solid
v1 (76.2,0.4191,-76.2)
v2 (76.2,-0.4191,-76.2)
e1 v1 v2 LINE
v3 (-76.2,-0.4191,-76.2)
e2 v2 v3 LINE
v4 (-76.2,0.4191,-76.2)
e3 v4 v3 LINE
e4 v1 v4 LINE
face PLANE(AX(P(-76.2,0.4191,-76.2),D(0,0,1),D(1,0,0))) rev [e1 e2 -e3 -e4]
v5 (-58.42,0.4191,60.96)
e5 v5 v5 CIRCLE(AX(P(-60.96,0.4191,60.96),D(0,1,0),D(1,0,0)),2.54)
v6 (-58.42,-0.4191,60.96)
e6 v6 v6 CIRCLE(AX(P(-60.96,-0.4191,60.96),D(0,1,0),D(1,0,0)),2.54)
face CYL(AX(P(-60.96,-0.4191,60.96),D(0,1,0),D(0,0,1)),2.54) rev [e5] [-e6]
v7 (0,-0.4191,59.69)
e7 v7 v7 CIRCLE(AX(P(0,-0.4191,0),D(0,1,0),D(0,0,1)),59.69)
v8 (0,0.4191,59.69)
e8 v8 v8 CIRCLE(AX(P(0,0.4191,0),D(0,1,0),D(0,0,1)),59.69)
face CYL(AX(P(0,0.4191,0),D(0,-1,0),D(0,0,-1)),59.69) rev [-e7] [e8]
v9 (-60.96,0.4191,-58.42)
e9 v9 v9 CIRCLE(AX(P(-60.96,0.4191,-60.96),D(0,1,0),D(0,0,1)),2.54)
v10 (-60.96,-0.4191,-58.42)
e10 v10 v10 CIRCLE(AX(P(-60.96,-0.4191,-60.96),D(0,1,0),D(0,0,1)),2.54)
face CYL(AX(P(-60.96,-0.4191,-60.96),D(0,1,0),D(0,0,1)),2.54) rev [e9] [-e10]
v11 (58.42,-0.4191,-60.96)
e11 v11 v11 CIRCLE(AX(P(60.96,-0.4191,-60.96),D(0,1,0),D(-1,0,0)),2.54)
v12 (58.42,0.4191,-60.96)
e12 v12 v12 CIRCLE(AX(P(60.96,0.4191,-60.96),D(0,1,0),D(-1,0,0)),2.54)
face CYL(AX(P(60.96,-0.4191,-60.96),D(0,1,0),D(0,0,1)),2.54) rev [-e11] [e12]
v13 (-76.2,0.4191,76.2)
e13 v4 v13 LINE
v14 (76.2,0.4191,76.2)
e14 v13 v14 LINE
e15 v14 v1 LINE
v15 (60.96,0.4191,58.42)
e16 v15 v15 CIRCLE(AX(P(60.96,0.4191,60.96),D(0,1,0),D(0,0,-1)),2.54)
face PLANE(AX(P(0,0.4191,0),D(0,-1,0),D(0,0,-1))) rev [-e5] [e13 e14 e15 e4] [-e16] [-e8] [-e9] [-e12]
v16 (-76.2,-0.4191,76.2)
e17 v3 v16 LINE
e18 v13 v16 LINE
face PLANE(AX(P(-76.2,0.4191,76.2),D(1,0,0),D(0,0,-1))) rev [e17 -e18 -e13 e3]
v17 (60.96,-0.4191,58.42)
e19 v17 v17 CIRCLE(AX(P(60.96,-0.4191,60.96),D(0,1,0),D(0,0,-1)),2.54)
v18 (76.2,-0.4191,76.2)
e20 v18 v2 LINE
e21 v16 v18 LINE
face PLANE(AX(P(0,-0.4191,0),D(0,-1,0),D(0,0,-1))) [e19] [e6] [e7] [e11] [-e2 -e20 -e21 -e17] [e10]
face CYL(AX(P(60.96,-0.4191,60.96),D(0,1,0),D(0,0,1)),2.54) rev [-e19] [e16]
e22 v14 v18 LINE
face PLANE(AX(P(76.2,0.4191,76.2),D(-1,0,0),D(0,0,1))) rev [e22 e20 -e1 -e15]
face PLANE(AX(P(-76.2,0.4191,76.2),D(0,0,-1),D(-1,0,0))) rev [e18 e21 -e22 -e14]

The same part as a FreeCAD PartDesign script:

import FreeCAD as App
import Part
import Sketcher

V = App.Vector
Q = App.Units.Quantity

doc = App.newDocument("Part")
params = doc.addObject("Spreadsheet::Sheet", "Params")
for row, (alias, value) in enumerate([
    ("sketch1_diameter", "4.7 in"),
    ("sketch1_width", "6 in"),
    ("pad1_length", "0.033 in"),
    ("sketch2_diameter", "0.2 in"),
], start=1):
    params.set(f"A{row}", alias)
    params.set(f"B{row}", "=" + value)
    params.setAlias(f"B{row}", alias)

body = doc.addObject("PartDesign::Body", "Body")

# Sketch on XZ plane
sketch1 = body.newObject("Sketcher::SketchObject", "Sketch")
sketch1.AttachmentSupport = (doc.getObject("XZ_Plane"), [""])
sketch1.MapMode = "FlatFace"
sketch1.addGeometry(Part.LineSegment(V(-76.2, -76.2, 0), V(-76.2, 76.2, 0)), False)
sketch1.addGeometry(Part.LineSegment(V(-76.2, 76.2, 0), V(76.2, 76.2, 0)), False)
sketch1.addGeometry(Part.LineSegment(V(76.2, 76.2, 0), V(76.2, -76.2, 0)), False)
sketch1.addGeometry(Part.LineSegment(V(76.2, -76.2, 0), V(-76.2, -76.2, 0)), False)
sketch1.addGeometry(Part.Circle(V(0, 0, 0), V(0, 0, 1), 59.69), False)
sketch1.addConstraint(Sketcher.Constraint("Coincident", 0, 2, 1, 1))
sketch1.addConstraint(Sketcher.Constraint("Coincident", 1, 2, 2, 1))
sketch1.addConstraint(Sketcher.Constraint("Coincident", 2, 2, 3, 1))
sketch1.addConstraint(Sketcher.Constraint("Coincident", 3, 2, 0, 1))
sketch1.addConstraint(Sketcher.Constraint("Vertical", 0))
sketch1.addConstraint(Sketcher.Constraint("Horizontal", 1))
sketch1.addConstraint(Sketcher.Constraint("Vertical", 2))
sketch1.addConstraint(Sketcher.Constraint("Horizontal", 3))
sketch1.addConstraint(Sketcher.Constraint("Coincident", 4, 3, -1, 1))
sketch1.addConstraint(Sketcher.Constraint("Symmetric", 0, 2, 2, 2, -1, 1))
sketch1.addConstraint(Sketcher.Constraint("Equal", 3, 0))
sketch1.addConstraint(Sketcher.Constraint("Diameter", 4, Q("4.7 in")))
sketch1.addConstraint(Sketcher.Constraint("DistanceX", 1, 1, 1, 2, Q("6 in")))
sketch1.setExpression("Constraints[11]", "Params.sketch1_diameter")
sketch1.setExpression("Constraints[12]", "Params.sketch1_width")
pad1 = body.newObject("PartDesign::Pad", "Pad")
pad1.Profile = sketch1
pad1.setExpression("Length", "Params.pad1_length")
pad1.Midplane = True

# Sketch on XZ plane
sketch2 = body.newObject("Sketcher::SketchObject", "Sketch001")
sketch2.AttachmentSupport = (doc.getObject("XZ_Plane"), [""])
sketch2.MapMode = "FlatFace"
sketch2.AttachmentOffset = App.Placement(V(0, 0, -0.0165 * 25.4), App.Rotation())
sketch2.addGeometry(Part.Circle(V(-60.96, -60.96, 0), V(0, 0, 1), 2.54), False)
sketch2.addConstraint(Sketcher.Constraint("Diameter", 0, Q("0.2 in")))
sketch2.addConstraint(Sketcher.Constraint("DistanceX", 0, 3, -1, 1, Q("2.4 in")))
sketch2.addConstraint(Sketcher.Constraint("DistanceY", 0, 3, -1, 1, Q("2.4 in")))
sketch2.setExpression("Constraints[0]", "Params.sketch2_diameter")
pocket1 = body.newObject("PartDesign::Pocket", "Pocket")
pocket1.Profile = sketch2
pocket1.Type = "ThroughAll"
pocket1.Reversed = True
doc.recompute()

polarpattern = body.newObject("PartDesign::PolarPattern", "PolarPattern")
polarpattern.Originals = [pocket1]
polarpattern.Axis = (doc.getObject("Y_Axis"), [""])
polarpattern.Angle = 360
polarpattern.Occurrences = 4
body.Tip = polarpattern

doc.recompute()
